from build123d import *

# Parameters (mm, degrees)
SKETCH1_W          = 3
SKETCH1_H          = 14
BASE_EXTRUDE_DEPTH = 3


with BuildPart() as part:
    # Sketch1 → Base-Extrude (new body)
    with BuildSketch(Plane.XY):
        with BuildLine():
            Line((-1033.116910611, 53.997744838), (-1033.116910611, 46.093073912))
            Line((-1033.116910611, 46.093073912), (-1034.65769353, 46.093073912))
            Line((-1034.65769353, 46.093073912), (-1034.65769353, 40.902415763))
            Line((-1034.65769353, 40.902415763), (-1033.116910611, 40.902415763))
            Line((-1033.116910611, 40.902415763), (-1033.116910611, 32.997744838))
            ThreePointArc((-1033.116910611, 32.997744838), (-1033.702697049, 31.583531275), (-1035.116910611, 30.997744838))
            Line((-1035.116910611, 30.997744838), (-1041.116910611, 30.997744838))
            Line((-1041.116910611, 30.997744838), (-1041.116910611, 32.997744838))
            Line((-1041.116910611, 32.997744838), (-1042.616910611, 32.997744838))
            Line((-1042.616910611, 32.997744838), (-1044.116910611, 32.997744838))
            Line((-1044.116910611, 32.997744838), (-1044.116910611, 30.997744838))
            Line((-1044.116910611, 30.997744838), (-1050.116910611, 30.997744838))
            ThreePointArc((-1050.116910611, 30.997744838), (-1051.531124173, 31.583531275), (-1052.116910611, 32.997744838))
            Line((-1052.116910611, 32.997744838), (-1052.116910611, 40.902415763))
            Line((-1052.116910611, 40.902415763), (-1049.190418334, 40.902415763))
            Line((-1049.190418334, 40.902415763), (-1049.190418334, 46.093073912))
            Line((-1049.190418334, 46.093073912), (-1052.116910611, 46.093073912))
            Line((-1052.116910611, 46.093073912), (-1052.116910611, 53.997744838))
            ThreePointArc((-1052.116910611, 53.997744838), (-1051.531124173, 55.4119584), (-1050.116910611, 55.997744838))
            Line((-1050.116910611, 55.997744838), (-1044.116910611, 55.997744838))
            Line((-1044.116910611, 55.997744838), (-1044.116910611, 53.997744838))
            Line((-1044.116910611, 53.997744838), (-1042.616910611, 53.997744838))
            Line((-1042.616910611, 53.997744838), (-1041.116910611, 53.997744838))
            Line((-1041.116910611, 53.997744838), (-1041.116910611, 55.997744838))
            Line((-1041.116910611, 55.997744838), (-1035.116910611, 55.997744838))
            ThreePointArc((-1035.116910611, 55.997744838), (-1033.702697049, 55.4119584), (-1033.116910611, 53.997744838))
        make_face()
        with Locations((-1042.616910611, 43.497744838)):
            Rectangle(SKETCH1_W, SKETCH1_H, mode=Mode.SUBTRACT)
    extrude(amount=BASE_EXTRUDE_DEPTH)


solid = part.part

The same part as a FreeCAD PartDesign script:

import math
import FreeCAD as App
import Part
import Sketcher
from FreeCAD import Vector
Q = App.Units.Quantity


def add_polygon(sketch, points):
    """Adds a closed chain of lines whose ends are joined by coincident constraints."""
    first, n = sketch.GeometryCount, len(points)
    for a, b in zip(points, points[1:] + points[:1]):
        sketch.addGeometry(Part.LineSegment(App.Vector(*a, 0), App.Vector(*b, 0)), False)
    for i in range(n):
        sketch.addConstraint(Sketcher.Constraint("Coincident", first + i, 2, first + (i + 1) % n, 1))

doc = App.newDocument("Part")
body = doc.addObject("PartDesign::Body", "Body")

sketch1 = body.newObject("Sketcher::SketchObject", "Sketch")
sketch1.AttachmentSupport = (doc.getObject("XY_Plane"), [""])
sketch1.MapMode = "FlatFace"
sketch1.addGeometry(Part.LineSegment(Vector(-1033.1, 46.1, 0), Vector(-1033.1, 54, 0)), False)
sketch1.addGeometry(Part.ArcOfCircle(Part.Circle(Vector(-1035.1, 54, 0), Vector(0, 0, 1), 2), math.radians(0), math.radians(90)), False)
sketch1.addGeometry(Part.LineSegment(Vector(-1035.1, 56, 0), Vector(-1041.1, 56, 0)), False)
sketch1.addGeometry(Part.LineSegment(Vector(-1041.1, 56, 0), Vector(-1041.1, 54, 0)), False)
sketch1.addGeometry(Part.LineSegment(Vector(-1041.1, 54, 0), Vector(-1044.1, 54, 0)), False)
sketch1.addGeometry(Part.LineSegment(Vector(-1044.1, 54, 0), Vector(-1044.1, 56, 0)), False)
sketch1.addGeometry(Part.LineSegment(Vector(-1044.1, 56, 0), Vector(-1050.1, 56, 0)), False)
sketch1.addGeometry(Part.ArcOfCircle(Part.Circle(Vector(-1050.1, 54, 0), Vector(0, 0, 1), 2), math.radians(90), math.radians(180)), False)
sketch1.addGeometry(Part.LineSegment(Vector(-1052.1, 54, 0), Vector(-1052.1, 46.1, 0)), False)
sketch1.addGeometry(Part.LineSegment(Vector(-1052.1, 46.1, 0), Vector(-1049.2, 46.1, 0)), False)
sketch1.addGeometry(Part.LineSegment(Vector(-1049.2, 46.1, 0), Vector(-1049.2, 40.9, 0)), False)
sketch1.addGeometry(Part.LineSegment(Vector(-1049.2, 40.9, 0), Vector(-1052.1, 40.9, 0)), False)
sketch1.addGeometry(Part.LineSegment(Vector(-1052.1, 40.9, 0), Vector(-1052.1, 33, 0)), False)
sketch1.addGeometry(Part.ArcOfCircle(Part.Circle(Vector(-1050.1, 33, 0), Vector(0, 0, 1), 2), math.radians(180), math.radians(270)), False)
sketch1.addGeometry(Part.LineSegment(Vector(-1050.1, 31, 0), Vector(-1044.1, 31, 0)), False)
sketch1.addGeometry(Part.LineSegment(Vector(-1044.1, 31, 0), Vector(-1044.1, 33, 0)), False)
sketch1.addGeometry(Part.LineSegment(Vector(-1044.1, 33, 0), Vector(-1041.1, 33, 0)), False)
sketch1.addGeometry(Part.LineSegment(Vector(-1041.1, 33, 0), Vector(-1041.1, 31, 0)), False)
sketch1.addGeometry(Part.LineSegment(Vector(-1041.1, 31, 0), Vector(-1035.1, 31, 0)), False)
sketch1.addGeometry(Part.ArcOfCircle(Part.Circle(Vector(-1035.1, 33, 0), Vector(0, 0, 1), 2), math.radians(-90), math.radians(0)), False)
sketch1.addGeometry(Part.LineSegment(Vector(-1033.1, 33, 0), Vector(-1033.1, 40.9, 0)), False)
sketch1.addGeometry(Part.LineSegment(Vector(-1033.1, 40.9, 0), Vector(-1034.7, 40.9, 0)), False)
sketch1.addGeometry(Part.LineSegment(Vector(-1034.7, 40.9, 0), Vector(-1034.7, 46.1, 0)), False)
sketch1.addGeometry(Part.LineSegment(Vector(-1034.7, 46.1, 0), Vector(-1033.1, 46.1, 0)), False)
add_polygon(sketch1, [(-1044.1, 36.5), (-1044.1, 50.5), (-1041.1, 50.5), (-1041.1, 36.5)])
sketch1.addConstraint([
    Sketcher.Constraint("Tangent", 0, 2, 1, 1),
    Sketcher.Constraint("Tangent", 1, 2, 2, 1),
    Sketcher.Constraint("Coincident", 2, 2, 3, 1),
    Sketcher.Constraint("Coincident", 3, 2, 4, 1),
    Sketcher.Constraint("Coincident", 4, 2, 5, 1),
    Sketcher.Constraint("Coincident", 5, 2, 6, 1),
    Sketcher.Constraint("Tangent", 6, 2, 7, 1),
    Sketcher.Constraint("Tangent", 7, 2, 8, 1),
    Sketcher.Constraint("Coincident", 8, 2, 9, 1),
    Sketcher.Constraint("Coincident", 9, 2, 10, 1),
    Sketcher.Constraint("Coincident", 10, 2, 11, 1),
    Sketcher.Constraint("Coincident", 11, 2, 12, 1),
    Sketcher.Constraint("Tangent", 12, 2, 13, 1),
    Sketcher.Constraint("Tangent", 13, 2, 14, 1),
    Sketcher.Constraint("Coincident", 14, 2, 15, 1),
    Sketcher.Constraint("Coincident", 15, 2, 16, 1),
    Sketcher.Constraint("Coincident", 16, 2, 17, 1),
    Sketcher.Constraint("Coincident", 17, 2, 18, 1),
    Sketcher.Constraint("Tangent", 18, 2, 19, 1),
    Sketcher.Constraint("Tangent", 19, 2, 20, 1),
    Sketcher.Constraint("Coincident", 20, 2, 21, 1),
    Sketcher.Constraint("Coincident", 21, 2, 22, 1),
    Sketcher.Constraint("Coincident", 22, 2, 23, 1),
    Sketcher.Constraint("Coincident", 23, 2, 0, 1),
    Sketcher.Constraint("Vertical", 0),
    Sketcher.Constraint("Horizontal", 2),
    Sketcher.Constraint("Vertical", 3),
    Sketcher.Constraint("Horizontal", 4),
    Sketcher.Constraint("Vertical", 5),
    Sketcher.Constraint("Horizontal", 6),
    Sketcher.Constraint("Vertical", 8),
    Sketcher.Constraint("Horizontal", 9),
    Sketcher.Constraint("Vertical", 10),
    Sketcher.Constraint("Horizontal", 11),
    Sketcher.Constraint("Vertical", 12),
    Sketcher.Constraint("Horizontal", 14),
    Sketcher.Constraint("Vertical", 15),
    Sketcher.Constraint("Horizontal", 16),
    Sketcher.Constraint("Vertical", 17),
    Sketcher.Constraint("Horizontal", 18),
    Sketcher.Constraint("Vertical", 20),
    Sketcher.Constraint("Horizontal", 21),
    Sketcher.Constraint("Vertical", 22),
    Sketcher.Constraint("Horizontal", 23),
    Sketcher.Constraint("Vertical", 24),
    Sketcher.Constraint("Horizontal", 25),
    Sketcher.Constraint("Vertical", 26),
    Sketcher.Constraint("Horizontal", 27),
    Sketcher.Constraint("Equal", 1, 7),
    Sketcher.Constraint("Equal", 7, 13),
    Sketcher.Constraint("Equal", 13, 19),
    Sketcher.Constraint("Horizontal", 1, 3, 7, 3),
    Sketcher.Constraint("Horizontal", 13, 3, 19, 3),
    Sketcher.Constraint("Horizontal", 0, 2, 3, 2),
    Sketcher.Constraint("Horizontal", 12, 2, 15, 2),
    Sketcher.Constraint("Horizontal", 11, 2, 20, 2),
    Sketcher.Constraint("Horizontal", 9, 2, 22, 2),
    Sketcher.Constraint("Vertical", 7, 3, 13, 3),
    Sketcher.Constraint("Vertical", 1, 3, 19, 3),
    Sketcher.Constraint("Vertical", 5, 2, 14, 2),
    Sketcher.Constraint("Vertical", 3, 2, 16, 2),
    Sketcher.Constraint("Vertical", 15, 2, 24, 2),
    Sketcher.Constraint("Vertical", 17, 2, 25, 2),
    Sketcher.Constraint("Equal", 2, 6),
    Sketcher.Constraint("Equal", 8, 12),
    Sketcher.Constraint("Radius", 1, Q("2 mm")),
    Sketcher.Constraint("DistanceX", 2, 2, 2, 1, Q("6 mm")),
    Sketcher.Constraint("DistanceX", 4, 2, 4, 1, Q("3 mm")),
    Sketcher.Constraint("DistanceY", 24, 1, 24, 2, Q("14 mm")),
    Sketcher.Constraint("DistanceY", 13, 3, 7, 3, Q("21 mm")),
    Sketcher.Constraint("DistanceY", 24, 2, 4, 2, Q("3.5 mm")),
    Sketcher.Constraint("DistanceY", 0, 1, 0, 2, Q("7.904671 mm")),
    Sketcher.Constraint("DistanceX", 9, 1, 9, 2, Q("2.926492 mm")),
    Sketcher.Constraint("DistanceX", 21, 2, 21, 1, Q("1.540783 mm")),
    Sketcher.Constraint("DistanceX", 1, 3, -1, 1, Q("1035.116911 mm")),
    Sketcher.Constraint("DistanceY", -1, 1, 1, 3, Q("53.997745 mm")),
])
pad1 = body.newObject("PartDesign::Pad", "Pad")
pad1.Profile = sketch1
pad1.Length = 3

doc.recompute()
